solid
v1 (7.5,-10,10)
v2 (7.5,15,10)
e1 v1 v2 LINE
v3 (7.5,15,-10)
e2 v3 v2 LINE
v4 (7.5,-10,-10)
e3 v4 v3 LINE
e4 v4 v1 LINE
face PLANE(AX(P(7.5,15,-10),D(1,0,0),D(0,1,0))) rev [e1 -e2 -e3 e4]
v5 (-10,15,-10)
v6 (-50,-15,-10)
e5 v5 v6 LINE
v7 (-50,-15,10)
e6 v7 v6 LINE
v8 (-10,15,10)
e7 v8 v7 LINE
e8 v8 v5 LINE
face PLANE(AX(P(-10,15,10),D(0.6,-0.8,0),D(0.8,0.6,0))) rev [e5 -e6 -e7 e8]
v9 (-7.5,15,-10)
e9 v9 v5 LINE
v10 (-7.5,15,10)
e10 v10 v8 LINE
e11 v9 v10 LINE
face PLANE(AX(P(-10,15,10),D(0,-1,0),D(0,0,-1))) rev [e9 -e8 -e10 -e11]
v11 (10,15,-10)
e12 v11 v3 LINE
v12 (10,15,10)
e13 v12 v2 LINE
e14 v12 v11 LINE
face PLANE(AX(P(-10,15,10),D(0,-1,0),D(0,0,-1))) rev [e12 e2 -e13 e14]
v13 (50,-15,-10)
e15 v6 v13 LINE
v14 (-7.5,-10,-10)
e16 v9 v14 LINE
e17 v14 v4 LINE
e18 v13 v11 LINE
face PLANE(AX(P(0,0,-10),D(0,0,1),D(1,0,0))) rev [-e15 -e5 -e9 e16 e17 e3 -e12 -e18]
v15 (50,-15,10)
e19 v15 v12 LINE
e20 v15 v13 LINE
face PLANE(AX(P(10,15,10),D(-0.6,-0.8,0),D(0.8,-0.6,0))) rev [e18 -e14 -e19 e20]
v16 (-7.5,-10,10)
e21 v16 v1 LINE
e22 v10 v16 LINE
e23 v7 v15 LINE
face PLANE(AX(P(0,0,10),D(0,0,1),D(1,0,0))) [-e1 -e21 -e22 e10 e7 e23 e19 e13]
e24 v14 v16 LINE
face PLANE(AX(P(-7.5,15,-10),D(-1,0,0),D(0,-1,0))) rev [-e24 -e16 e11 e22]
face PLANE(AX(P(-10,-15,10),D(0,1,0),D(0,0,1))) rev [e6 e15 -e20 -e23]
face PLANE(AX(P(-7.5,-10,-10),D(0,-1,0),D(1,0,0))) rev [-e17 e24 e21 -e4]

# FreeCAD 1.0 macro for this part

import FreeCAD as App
import Part
import Sketcher

doc = App.newDocument("Part")
body = doc.addObject("PartDesign::Body", "Body")

# Sketch on XY plane
sketch1 = doc.addObject("Sketcher::SketchObject", "Sketch")
body.addObject(sketch1)
sketch1.AttachmentSupport = (doc.XY_Plane, [""])
sketch1.MapMode = "FlatFace"
sketch1.addGeometry([
    Part.LineSegment(App.Vector(-10, 15, 0), App.Vector(-50, -15, 0)),
    Part.LineSegment(App.Vector(-50, -15, 0), App.Vector(50, -15, 0)),
    Part.LineSegment(App.Vector(50, -15, 0), App.Vector(10, 15, 0)),
    Part.LineSegment(App.Vector(10, 15, 0), App.Vector(-10, 15, 0)),
], False)
sketch1.addConstraint([
    Sketcher.Constraint("Coincident", 0, 2, 1, 1),
    Sketcher.Constraint("Coincident", 1, 2, 2, 1),
    Sketcher.Constraint("Coincident", 2, 2, 3, 1),
    Sketcher.Constraint("Coincident", 3, 2, 0, 1),
    Sketcher.Constraint("Horizontal", 1),
    Sketcher.Constraint("Horizontal", 3),
    Sketcher.Constraint("Equal", 0, 2),
    Sketcher.Constraint("DistanceX", 1, 1, 1, 2, 100.0),
    Sketcher.Constraint("DistanceX", 3, 2, 3, 1, 20.0),
    Sketcher.Constraint("Distance", 0, 50.0),
    Sketcher.Constraint("DistanceX", 0, 2, -1, 1, 50.0),
    Sketcher.Constraint("DistanceY", 0, 2, -1, 1, 15.0),
])
pad1 = doc.addObject("PartDesign::Pad", "Pad")
body.addObject(pad1)
pad1.Profile = sketch1
pad1.Length = 20
pad1.Midplane = True

# Sketch on XY plane
sketch2 = doc.addObject("Sketcher::SketchObject", "Sketch001")
body.addObject(sketch2)
sketch2.AttachmentSupport = (doc.XY_Plane, [""])
sketch2.MapMode = "FlatFace"
sketch2.AttachmentOffset = App.Placement(App.Vector(0, 0, 10), App.Rotation())
sketch2.addGeometry([
    Part.LineSegment(App.Vector(-8, 15, 0), App.Vector(-8, -10, 0)),
    Part.LineSegment(App.Vector(-8, -10, 0), App.Vector(8, -10, 0)),
    Part.LineSegment(App.Vector(8, -10, 0), App.Vector(8, 15, 0)),
    Part.LineSegment(App.Vector(8, 15, 0), App.Vector(-8, 15, 0)),
], False)
sketch2.addConstraint([
    Sketcher.Constraint("Coincident", 0, 2, 1, 1),
    Sketcher.Constraint("Coincident", 1, 2, 2, 1),
    Sketcher.Constraint("Coincident", 2, 2, 3, 1),
    Sketcher.Constraint("Coincident", 3, 2, 0, 1),
    Sketcher.Constraint("Vertical", 0),
    Sketcher.Constraint("Horizontal", 1),
    Sketcher.Constraint("Vertical", 2),
    Sketcher.Constraint("Horizontal", 3),
    Sketcher.Constraint("DistanceX", 1, 1, 1, 2, 15.0),
    Sketcher.Constraint("DistanceY", 0, 2, 0, 1, 25.0),
    Sketcher.Constraint("DistanceY", 0, 2, -1, 1, 10.0),
    Sketcher.Constraint("DistanceX", 0, 2, -1, 1, 7.5),
])
pocket1 = doc.addObject("PartDesign::Pocket", "Pocket")
body.addObject(pocket1)
pocket1.Profile = sketch2
pocket1.Length = 20

doc.recompute()
